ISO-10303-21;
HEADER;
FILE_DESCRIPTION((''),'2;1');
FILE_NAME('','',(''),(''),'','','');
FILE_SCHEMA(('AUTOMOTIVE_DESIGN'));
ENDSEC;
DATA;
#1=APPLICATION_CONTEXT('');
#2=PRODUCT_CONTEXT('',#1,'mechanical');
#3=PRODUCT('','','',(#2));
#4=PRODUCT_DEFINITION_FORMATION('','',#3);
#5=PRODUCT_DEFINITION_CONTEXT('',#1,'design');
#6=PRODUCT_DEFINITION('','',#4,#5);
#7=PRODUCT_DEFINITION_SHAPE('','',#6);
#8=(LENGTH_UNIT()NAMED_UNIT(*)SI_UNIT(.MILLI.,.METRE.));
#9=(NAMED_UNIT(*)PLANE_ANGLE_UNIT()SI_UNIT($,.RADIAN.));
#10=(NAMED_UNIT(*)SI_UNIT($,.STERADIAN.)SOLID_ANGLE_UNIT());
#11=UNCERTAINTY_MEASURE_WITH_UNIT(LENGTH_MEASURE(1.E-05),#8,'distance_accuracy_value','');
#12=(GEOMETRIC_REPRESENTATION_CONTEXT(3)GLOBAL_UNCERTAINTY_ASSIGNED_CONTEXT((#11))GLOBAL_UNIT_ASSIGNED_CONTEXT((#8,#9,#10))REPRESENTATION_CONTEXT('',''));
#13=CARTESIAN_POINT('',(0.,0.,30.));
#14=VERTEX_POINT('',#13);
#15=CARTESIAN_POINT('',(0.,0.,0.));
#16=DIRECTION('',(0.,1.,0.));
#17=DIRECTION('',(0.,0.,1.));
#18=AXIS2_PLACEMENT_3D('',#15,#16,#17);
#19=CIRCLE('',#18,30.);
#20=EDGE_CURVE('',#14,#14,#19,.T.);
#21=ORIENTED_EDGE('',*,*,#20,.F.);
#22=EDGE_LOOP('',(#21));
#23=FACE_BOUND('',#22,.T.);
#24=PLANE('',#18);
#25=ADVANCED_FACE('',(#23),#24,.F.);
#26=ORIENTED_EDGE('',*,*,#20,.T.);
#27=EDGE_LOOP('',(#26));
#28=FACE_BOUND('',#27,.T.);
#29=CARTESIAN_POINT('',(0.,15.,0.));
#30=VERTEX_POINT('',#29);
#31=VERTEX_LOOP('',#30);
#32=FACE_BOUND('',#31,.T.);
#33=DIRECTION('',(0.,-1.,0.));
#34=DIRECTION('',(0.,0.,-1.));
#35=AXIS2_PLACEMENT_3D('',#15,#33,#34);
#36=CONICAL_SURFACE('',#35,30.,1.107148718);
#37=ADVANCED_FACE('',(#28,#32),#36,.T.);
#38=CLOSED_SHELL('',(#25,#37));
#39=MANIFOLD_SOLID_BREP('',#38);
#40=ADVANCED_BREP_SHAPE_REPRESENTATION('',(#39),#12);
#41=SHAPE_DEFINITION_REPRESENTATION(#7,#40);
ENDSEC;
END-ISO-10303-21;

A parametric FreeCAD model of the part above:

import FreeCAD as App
import Part
import Sketcher

V = App.Vector


def add_polygon(sketch, points):
    """Adds a closed chain of lines whose ends are joined by coincident constraints."""
    first, n = sketch.GeometryCount, len(points)
    for a, b in zip(points, points[1:] + points[:1]):
        sketch.addGeometry(Part.LineSegment(App.Vector(*a, 0), App.Vector(*b, 0)), False)
    for i in range(n):
        sketch.addConstraint(Sketcher.Constraint("Coincident", first + i, 2, first + (i + 1) % n, 1))

doc = App.newDocument("Part")
body = doc.addObject("PartDesign::Body", "Body")

# Sketch on XY plane
sketch1 = body.newObject("Sketcher::SketchObject", "Sketch")
sketch1.AttachmentSupport = (doc.getObject("XY_Plane"), [""])
sketch1.MapMode = "FlatFace"
add_polygon(sketch1, [(0, 0), (30, 0), (0, 15)])  # lines 0-2
sketch1.addConstraint([
    Sketcher.Constraint("Horizontal", 0),
    Sketcher.Constraint("Vertical", 2),
    Sketcher.Constraint("Coincident", 2, 2, -1, 1),
    Sketcher.Constraint("DistanceX", 0, 1, 0, 2, 30.0),
    Sketcher.Constraint("DistanceY", 2, 2, 2, 1, 15.0),
])
revolution = body.newObject("PartDesign::Revolution", "Revolution")
revolution.Profile = sketch1
revolution.ReferenceAxis = (sketch1, ["V_Axis"])
revolution.Angle = 360

doc.recompute()
